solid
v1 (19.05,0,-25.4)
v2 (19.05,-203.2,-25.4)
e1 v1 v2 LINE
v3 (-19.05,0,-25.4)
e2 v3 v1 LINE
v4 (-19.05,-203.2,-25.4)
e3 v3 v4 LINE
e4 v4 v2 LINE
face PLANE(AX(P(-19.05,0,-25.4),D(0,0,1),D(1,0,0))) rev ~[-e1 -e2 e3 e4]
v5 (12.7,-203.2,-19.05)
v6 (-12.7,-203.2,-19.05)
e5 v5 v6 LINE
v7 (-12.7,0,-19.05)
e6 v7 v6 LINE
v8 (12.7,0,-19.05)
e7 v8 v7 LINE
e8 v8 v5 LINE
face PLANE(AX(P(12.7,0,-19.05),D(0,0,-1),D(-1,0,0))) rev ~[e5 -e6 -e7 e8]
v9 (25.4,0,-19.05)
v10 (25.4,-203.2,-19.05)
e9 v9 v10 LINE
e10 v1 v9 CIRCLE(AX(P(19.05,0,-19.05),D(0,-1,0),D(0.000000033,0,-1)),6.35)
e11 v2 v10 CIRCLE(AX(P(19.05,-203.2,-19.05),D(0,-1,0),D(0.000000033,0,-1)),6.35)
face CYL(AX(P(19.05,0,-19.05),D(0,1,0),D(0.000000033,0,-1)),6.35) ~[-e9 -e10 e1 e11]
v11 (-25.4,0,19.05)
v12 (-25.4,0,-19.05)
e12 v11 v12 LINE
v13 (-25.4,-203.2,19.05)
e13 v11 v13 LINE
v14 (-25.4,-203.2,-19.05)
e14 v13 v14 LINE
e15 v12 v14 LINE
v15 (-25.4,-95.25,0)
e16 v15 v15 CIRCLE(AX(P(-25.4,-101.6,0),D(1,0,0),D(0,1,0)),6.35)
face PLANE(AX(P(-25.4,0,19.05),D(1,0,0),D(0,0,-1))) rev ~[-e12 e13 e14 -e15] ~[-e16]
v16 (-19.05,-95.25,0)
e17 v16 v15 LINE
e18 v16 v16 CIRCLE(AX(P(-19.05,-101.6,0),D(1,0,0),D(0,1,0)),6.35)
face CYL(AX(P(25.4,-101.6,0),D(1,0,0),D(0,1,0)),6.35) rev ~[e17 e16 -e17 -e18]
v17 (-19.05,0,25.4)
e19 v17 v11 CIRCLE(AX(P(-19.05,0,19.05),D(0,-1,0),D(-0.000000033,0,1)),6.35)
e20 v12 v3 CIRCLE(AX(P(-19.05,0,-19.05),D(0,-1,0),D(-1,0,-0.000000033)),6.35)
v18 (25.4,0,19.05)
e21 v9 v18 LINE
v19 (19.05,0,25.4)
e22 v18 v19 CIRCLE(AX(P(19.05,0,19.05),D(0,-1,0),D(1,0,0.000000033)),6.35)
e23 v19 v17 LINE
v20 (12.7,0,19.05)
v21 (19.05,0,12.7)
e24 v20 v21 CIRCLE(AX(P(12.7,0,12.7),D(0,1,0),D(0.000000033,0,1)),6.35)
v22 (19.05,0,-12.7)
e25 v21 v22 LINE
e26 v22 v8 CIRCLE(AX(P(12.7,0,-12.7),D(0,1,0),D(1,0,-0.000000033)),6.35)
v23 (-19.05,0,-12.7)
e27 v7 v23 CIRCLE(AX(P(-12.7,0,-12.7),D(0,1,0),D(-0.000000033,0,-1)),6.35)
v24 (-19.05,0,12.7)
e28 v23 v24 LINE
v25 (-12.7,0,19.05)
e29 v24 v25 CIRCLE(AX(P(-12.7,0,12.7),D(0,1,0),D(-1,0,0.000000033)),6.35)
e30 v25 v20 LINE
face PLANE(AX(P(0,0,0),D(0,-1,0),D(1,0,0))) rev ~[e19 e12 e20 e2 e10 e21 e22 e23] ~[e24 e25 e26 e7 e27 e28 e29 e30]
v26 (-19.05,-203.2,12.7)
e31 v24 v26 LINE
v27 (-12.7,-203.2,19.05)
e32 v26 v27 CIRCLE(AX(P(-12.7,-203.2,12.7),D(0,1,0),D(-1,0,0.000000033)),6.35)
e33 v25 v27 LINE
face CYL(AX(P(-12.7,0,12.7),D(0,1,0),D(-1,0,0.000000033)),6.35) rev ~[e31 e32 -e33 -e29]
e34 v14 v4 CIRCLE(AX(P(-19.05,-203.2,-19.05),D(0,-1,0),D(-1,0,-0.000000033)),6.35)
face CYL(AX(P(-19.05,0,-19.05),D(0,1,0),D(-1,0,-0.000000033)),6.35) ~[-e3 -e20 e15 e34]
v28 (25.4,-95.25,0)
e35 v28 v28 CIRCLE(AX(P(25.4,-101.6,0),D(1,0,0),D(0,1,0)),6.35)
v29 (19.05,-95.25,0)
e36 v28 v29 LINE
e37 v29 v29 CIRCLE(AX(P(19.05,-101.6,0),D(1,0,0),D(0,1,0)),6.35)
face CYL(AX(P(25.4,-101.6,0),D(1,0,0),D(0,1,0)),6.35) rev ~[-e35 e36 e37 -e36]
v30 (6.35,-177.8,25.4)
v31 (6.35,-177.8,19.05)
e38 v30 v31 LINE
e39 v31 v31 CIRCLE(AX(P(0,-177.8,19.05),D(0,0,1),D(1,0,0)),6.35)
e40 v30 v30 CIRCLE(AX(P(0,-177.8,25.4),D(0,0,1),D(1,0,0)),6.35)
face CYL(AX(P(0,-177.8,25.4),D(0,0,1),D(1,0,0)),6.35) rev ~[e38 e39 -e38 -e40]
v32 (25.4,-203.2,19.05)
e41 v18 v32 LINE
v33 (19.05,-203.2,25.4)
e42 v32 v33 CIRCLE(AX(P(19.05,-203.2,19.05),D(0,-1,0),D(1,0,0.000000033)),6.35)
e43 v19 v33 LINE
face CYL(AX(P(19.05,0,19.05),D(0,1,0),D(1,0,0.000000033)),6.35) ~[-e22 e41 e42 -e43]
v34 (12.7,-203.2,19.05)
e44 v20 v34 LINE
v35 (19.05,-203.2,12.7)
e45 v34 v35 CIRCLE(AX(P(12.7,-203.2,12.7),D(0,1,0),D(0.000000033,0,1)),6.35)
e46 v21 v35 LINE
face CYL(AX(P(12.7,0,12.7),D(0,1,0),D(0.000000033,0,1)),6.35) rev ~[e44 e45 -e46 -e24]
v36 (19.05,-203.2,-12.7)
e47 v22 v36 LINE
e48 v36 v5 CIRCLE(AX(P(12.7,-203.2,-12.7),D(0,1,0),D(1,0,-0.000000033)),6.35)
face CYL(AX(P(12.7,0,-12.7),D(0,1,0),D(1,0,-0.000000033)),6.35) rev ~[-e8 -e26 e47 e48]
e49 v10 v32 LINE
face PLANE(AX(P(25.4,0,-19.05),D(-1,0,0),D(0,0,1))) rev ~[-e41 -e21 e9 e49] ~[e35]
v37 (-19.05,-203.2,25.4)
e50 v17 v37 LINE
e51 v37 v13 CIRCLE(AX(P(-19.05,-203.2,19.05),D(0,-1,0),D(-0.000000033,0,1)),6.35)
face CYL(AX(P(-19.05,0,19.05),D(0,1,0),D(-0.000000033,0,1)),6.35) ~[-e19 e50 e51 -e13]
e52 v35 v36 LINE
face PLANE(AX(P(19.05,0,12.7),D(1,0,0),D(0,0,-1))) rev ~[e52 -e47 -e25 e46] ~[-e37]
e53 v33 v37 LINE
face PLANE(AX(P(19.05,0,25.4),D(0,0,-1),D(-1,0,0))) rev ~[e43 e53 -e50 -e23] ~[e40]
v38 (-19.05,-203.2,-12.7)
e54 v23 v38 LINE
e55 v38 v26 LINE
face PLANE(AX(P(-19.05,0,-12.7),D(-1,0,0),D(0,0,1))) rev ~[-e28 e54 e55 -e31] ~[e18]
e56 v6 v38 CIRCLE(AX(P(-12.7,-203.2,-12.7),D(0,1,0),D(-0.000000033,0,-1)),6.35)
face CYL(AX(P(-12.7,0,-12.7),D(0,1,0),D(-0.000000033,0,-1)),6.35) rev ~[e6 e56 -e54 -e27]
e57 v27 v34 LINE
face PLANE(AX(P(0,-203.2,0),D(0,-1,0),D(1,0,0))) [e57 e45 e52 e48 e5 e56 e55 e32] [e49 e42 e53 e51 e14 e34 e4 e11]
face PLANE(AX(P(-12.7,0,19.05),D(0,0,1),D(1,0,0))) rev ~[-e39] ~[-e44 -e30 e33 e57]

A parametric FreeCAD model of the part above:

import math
import FreeCAD as App
import Part
import Sketcher

V = App.Vector
Q = App.Units.Quantity

doc = App.newDocument("Part")
params = doc.addObject("Spreadsheet::Sheet", "Params")
for row, (alias, value) in enumerate([
    ("sketch1_width", "1 in"),
    ("sketch1_radius", "0.25 in"),
    ("pad1_length", "8 in"),
    ("sketch2_diameter", "0.5 in"),
    ("pocket1_length", "2 in"),
    ("sketch3_diameter", "0.5 in"),
    ("pocket2_length", "1 in"),
], start=1):
    params.set(f"A{row}", alias)
    params.set(f"B{row}", "=" + value)
    params.setAlias(f"B{row}", alias)

body = doc.addObject("PartDesign::Body", "Body")

# Sketch on XZ plane
sketch1 = body.newObject("Sketcher::SketchObject", "Sketch")
sketch1.AttachmentSupport = (doc.getObject("XZ_Plane"), [""])
sketch1.MapMode = "FlatFace"
sketch1.addGeometry([
    Part.LineSegment(V(-19, -25, 0), V(19, -25, 0)),  # 0
    Part.ArcOfCircle(Part.Circle(V(19, -19, 0), V(0, 0, 1), 6), math.radians(-90), math.radians(0)),  # 1
    Part.LineSegment(V(25, -19, 0), V(25, 19, 0)),  # 2
    Part.ArcOfCircle(Part.Circle(V(19, 19, 0), V(0, 0, 1), 6), math.radians(0), math.radians(90)),  # 3
    Part.LineSegment(V(19, 25, 0), V(-19, 25, 0)),  # 4
    Part.ArcOfCircle(Part.Circle(V(-19, 19, 0), V(0, 0, 1), 6), math.radians(90), math.radians(180)),  # 5
    Part.LineSegment(V(-25, 19, 0), V(-25, -19, 0)),  # 6
    Part.ArcOfCircle(Part.Circle(V(-19, -19, 0), V(0, 0, 1), 6), math.radians(-180), math.radians(-90)),  # 7
    Part.LineSegment(V(19, 13, 0), V(19, -13, 0)),  # 8
    Part.ArcOfCircle(Part.Circle(V(13, -13, 0), V(0, 0, 1), 6), math.radians(-90), math.radians(0)),  # 9
    Part.LineSegment(V(13, -19, 0), V(-13, -19, 0)),  # 10
    Part.ArcOfCircle(Part.Circle(V(-13, -13, 0), V(0, 0, 1), 6), math.radians(-180), math.radians(-90)),  # 11
    Part.LineSegment(V(-19, -13, 0), V(-19, 13, 0)),  # 12
    Part.ArcOfCircle(Part.Circle(V(-13, 13, 0), V(0, 0, 1), 6), math.radians(90), math.radians(180)),  # 13
    Part.LineSegment(V(-13, 19, 0), V(13, 19, 0)),  # 14
    Part.ArcOfCircle(Part.Circle(V(13, 13, 0), V(0, 0, 1), 6), math.radians(0), math.radians(90)),  # 15
], False)
sketch1.addConstraint([
    Sketcher.Constraint("Tangent", 0, 2, 1, 1),
    Sketcher.Constraint("Tangent", 1, 2, 2, 1),
    Sketcher.Constraint("Tangent", 2, 2, 3, 1),
    Sketcher.Constraint("Tangent", 3, 2, 4, 1),
    Sketcher.Constraint("Tangent", 4, 2, 5, 1),
    Sketcher.Constraint("Tangent", 5, 2, 6, 1),
    Sketcher.Constraint("Tangent", 6, 2, 7, 1),
    Sketcher.Constraint("Tangent", 7, 2, 0, 1),
    Sketcher.Constraint("Tangent", 8, 2, 9, 2),
    Sketcher.Constraint("Tangent", 9, 1, 10, 1),
    Sketcher.Constraint("Tangent", 10, 2, 11, 2),
    Sketcher.Constraint("Tangent", 11, 1, 12, 1),
    Sketcher.Constraint("Tangent", 12, 2, 13, 2),
    Sketcher.Constraint("Tangent", 13, 1, 14, 1),
    Sketcher.Constraint("Tangent", 14, 2, 15, 2),
    Sketcher.Constraint("Tangent", 15, 1, 8, 1),
    Sketcher.Constraint("Horizontal", 0),
    Sketcher.Constraint("Vertical", 2),
    Sketcher.Constraint("Horizontal", 4),
    Sketcher.Constraint("Vertical", 6),
    Sketcher.Constraint("Vertical", 8),
    Sketcher.Constraint("Horizontal", 10),
    Sketcher.Constraint("Vertical", 12),
    Sketcher.Constraint("Horizontal", 14),
    Sketcher.Constraint("Equal", 1, 3),
    Sketcher.Constraint("Equal", 3, 5),
    Sketcher.Constraint("Equal", 5, 7),
    Sketcher.Constraint("Equal", 7, 9),
    Sketcher.Constraint("Equal", 9, 11),
    Sketcher.Constraint("Equal", 11, 13),
    Sketcher.Constraint("Equal", 13, 15),
    Sketcher.Constraint("Symmetric", 1, 3, 5, 3, -1, 1),
    Sketcher.Constraint("Symmetric", 9, 3, 13, 3, -1, 1),
    Sketcher.Constraint("Horizontal", 6, 2, 9, 1),
    Sketcher.Constraint("Vertical", 3, 2, 8, 2),
    Sketcher.Constraint("Equal", 4, 2),
    Sketcher.Constraint("DistanceX", 10, 2, 10, 1, Q("1 in")),
    Sketcher.Constraint("Radius", 1, Q("0.25 in")),
])
sketch1.setExpression("Constraints[36]", "Params.sketch1_width")
sketch1.setExpression("Constraints[37]", "Params.sketch1_radius")
pad1 = body.newObject("PartDesign::Pad", "Pad")
pad1.Profile = sketch1
pad1.setExpression("Length", "Params.pad1_length")

# Sketch on YZ plane
sketch2 = body.newObject("Sketcher::SketchObject", "Sketch001")
sketch2.AttachmentSupport = (doc.getObject("YZ_Plane"), [""])
sketch2.MapMode = "FlatFace"
sketch2.AttachmentOffset = App.Placement(V(0, 0, 1 * 25.4), App.Rotation())
sketch2.addGeometry(Part.Circle(V(-102, 0, 0), V(0, 0, 1), 6), False)
sketch2.addConstraint([
    Sketcher.Constraint("PointOnObject", 0, 3, -1),
    Sketcher.Constraint("Diameter", 0, Q("0.5 in")),
    Sketcher.Constraint("DistanceX", 0, 3, -1, 1, Q("4 in")),
])
sketch2.setExpression("Constraints[1]", "Params.sketch2_diameter")
pocket1 = body.newObject("PartDesign::Pocket", "Pocket")
pocket1.Profile = sketch2
pocket1.setExpression("Length", "Params.pocket1_length")

# Sketch on XY plane
sketch3 = body.newObject("Sketcher::SketchObject", "Sketch002")
sketch3.AttachmentSupport = (doc.getObject("XY_Plane"), [""])
sketch3.MapMode = "FlatFace"
sketch3.AttachmentOffset = App.Placement(V(0, 0, 1 * 25.4), App.Rotation())
sketch3.addGeometry(Part.Circle(V(0, -178, 0), V(0, 0, 1), 6), False)
sketch3.addConstraint([
    Sketcher.Constraint("PointOnObject", 0, 3, -2),
    Sketcher.Constraint("Diameter", 0, Q("0.5 in")),
    Sketcher.Constraint("DistanceY", 0, 3, -1, 1, Q("7 in")),
])
sketch3.setExpression("Constraints[1]", "Params.sketch3_diameter")
pocket2 = body.newObject("PartDesign::Pocket", "Pocket001")
pocket2.Profile = sketch3
pocket2.setExpression("Length", "Params.pocket2_length")

doc.recompute()
